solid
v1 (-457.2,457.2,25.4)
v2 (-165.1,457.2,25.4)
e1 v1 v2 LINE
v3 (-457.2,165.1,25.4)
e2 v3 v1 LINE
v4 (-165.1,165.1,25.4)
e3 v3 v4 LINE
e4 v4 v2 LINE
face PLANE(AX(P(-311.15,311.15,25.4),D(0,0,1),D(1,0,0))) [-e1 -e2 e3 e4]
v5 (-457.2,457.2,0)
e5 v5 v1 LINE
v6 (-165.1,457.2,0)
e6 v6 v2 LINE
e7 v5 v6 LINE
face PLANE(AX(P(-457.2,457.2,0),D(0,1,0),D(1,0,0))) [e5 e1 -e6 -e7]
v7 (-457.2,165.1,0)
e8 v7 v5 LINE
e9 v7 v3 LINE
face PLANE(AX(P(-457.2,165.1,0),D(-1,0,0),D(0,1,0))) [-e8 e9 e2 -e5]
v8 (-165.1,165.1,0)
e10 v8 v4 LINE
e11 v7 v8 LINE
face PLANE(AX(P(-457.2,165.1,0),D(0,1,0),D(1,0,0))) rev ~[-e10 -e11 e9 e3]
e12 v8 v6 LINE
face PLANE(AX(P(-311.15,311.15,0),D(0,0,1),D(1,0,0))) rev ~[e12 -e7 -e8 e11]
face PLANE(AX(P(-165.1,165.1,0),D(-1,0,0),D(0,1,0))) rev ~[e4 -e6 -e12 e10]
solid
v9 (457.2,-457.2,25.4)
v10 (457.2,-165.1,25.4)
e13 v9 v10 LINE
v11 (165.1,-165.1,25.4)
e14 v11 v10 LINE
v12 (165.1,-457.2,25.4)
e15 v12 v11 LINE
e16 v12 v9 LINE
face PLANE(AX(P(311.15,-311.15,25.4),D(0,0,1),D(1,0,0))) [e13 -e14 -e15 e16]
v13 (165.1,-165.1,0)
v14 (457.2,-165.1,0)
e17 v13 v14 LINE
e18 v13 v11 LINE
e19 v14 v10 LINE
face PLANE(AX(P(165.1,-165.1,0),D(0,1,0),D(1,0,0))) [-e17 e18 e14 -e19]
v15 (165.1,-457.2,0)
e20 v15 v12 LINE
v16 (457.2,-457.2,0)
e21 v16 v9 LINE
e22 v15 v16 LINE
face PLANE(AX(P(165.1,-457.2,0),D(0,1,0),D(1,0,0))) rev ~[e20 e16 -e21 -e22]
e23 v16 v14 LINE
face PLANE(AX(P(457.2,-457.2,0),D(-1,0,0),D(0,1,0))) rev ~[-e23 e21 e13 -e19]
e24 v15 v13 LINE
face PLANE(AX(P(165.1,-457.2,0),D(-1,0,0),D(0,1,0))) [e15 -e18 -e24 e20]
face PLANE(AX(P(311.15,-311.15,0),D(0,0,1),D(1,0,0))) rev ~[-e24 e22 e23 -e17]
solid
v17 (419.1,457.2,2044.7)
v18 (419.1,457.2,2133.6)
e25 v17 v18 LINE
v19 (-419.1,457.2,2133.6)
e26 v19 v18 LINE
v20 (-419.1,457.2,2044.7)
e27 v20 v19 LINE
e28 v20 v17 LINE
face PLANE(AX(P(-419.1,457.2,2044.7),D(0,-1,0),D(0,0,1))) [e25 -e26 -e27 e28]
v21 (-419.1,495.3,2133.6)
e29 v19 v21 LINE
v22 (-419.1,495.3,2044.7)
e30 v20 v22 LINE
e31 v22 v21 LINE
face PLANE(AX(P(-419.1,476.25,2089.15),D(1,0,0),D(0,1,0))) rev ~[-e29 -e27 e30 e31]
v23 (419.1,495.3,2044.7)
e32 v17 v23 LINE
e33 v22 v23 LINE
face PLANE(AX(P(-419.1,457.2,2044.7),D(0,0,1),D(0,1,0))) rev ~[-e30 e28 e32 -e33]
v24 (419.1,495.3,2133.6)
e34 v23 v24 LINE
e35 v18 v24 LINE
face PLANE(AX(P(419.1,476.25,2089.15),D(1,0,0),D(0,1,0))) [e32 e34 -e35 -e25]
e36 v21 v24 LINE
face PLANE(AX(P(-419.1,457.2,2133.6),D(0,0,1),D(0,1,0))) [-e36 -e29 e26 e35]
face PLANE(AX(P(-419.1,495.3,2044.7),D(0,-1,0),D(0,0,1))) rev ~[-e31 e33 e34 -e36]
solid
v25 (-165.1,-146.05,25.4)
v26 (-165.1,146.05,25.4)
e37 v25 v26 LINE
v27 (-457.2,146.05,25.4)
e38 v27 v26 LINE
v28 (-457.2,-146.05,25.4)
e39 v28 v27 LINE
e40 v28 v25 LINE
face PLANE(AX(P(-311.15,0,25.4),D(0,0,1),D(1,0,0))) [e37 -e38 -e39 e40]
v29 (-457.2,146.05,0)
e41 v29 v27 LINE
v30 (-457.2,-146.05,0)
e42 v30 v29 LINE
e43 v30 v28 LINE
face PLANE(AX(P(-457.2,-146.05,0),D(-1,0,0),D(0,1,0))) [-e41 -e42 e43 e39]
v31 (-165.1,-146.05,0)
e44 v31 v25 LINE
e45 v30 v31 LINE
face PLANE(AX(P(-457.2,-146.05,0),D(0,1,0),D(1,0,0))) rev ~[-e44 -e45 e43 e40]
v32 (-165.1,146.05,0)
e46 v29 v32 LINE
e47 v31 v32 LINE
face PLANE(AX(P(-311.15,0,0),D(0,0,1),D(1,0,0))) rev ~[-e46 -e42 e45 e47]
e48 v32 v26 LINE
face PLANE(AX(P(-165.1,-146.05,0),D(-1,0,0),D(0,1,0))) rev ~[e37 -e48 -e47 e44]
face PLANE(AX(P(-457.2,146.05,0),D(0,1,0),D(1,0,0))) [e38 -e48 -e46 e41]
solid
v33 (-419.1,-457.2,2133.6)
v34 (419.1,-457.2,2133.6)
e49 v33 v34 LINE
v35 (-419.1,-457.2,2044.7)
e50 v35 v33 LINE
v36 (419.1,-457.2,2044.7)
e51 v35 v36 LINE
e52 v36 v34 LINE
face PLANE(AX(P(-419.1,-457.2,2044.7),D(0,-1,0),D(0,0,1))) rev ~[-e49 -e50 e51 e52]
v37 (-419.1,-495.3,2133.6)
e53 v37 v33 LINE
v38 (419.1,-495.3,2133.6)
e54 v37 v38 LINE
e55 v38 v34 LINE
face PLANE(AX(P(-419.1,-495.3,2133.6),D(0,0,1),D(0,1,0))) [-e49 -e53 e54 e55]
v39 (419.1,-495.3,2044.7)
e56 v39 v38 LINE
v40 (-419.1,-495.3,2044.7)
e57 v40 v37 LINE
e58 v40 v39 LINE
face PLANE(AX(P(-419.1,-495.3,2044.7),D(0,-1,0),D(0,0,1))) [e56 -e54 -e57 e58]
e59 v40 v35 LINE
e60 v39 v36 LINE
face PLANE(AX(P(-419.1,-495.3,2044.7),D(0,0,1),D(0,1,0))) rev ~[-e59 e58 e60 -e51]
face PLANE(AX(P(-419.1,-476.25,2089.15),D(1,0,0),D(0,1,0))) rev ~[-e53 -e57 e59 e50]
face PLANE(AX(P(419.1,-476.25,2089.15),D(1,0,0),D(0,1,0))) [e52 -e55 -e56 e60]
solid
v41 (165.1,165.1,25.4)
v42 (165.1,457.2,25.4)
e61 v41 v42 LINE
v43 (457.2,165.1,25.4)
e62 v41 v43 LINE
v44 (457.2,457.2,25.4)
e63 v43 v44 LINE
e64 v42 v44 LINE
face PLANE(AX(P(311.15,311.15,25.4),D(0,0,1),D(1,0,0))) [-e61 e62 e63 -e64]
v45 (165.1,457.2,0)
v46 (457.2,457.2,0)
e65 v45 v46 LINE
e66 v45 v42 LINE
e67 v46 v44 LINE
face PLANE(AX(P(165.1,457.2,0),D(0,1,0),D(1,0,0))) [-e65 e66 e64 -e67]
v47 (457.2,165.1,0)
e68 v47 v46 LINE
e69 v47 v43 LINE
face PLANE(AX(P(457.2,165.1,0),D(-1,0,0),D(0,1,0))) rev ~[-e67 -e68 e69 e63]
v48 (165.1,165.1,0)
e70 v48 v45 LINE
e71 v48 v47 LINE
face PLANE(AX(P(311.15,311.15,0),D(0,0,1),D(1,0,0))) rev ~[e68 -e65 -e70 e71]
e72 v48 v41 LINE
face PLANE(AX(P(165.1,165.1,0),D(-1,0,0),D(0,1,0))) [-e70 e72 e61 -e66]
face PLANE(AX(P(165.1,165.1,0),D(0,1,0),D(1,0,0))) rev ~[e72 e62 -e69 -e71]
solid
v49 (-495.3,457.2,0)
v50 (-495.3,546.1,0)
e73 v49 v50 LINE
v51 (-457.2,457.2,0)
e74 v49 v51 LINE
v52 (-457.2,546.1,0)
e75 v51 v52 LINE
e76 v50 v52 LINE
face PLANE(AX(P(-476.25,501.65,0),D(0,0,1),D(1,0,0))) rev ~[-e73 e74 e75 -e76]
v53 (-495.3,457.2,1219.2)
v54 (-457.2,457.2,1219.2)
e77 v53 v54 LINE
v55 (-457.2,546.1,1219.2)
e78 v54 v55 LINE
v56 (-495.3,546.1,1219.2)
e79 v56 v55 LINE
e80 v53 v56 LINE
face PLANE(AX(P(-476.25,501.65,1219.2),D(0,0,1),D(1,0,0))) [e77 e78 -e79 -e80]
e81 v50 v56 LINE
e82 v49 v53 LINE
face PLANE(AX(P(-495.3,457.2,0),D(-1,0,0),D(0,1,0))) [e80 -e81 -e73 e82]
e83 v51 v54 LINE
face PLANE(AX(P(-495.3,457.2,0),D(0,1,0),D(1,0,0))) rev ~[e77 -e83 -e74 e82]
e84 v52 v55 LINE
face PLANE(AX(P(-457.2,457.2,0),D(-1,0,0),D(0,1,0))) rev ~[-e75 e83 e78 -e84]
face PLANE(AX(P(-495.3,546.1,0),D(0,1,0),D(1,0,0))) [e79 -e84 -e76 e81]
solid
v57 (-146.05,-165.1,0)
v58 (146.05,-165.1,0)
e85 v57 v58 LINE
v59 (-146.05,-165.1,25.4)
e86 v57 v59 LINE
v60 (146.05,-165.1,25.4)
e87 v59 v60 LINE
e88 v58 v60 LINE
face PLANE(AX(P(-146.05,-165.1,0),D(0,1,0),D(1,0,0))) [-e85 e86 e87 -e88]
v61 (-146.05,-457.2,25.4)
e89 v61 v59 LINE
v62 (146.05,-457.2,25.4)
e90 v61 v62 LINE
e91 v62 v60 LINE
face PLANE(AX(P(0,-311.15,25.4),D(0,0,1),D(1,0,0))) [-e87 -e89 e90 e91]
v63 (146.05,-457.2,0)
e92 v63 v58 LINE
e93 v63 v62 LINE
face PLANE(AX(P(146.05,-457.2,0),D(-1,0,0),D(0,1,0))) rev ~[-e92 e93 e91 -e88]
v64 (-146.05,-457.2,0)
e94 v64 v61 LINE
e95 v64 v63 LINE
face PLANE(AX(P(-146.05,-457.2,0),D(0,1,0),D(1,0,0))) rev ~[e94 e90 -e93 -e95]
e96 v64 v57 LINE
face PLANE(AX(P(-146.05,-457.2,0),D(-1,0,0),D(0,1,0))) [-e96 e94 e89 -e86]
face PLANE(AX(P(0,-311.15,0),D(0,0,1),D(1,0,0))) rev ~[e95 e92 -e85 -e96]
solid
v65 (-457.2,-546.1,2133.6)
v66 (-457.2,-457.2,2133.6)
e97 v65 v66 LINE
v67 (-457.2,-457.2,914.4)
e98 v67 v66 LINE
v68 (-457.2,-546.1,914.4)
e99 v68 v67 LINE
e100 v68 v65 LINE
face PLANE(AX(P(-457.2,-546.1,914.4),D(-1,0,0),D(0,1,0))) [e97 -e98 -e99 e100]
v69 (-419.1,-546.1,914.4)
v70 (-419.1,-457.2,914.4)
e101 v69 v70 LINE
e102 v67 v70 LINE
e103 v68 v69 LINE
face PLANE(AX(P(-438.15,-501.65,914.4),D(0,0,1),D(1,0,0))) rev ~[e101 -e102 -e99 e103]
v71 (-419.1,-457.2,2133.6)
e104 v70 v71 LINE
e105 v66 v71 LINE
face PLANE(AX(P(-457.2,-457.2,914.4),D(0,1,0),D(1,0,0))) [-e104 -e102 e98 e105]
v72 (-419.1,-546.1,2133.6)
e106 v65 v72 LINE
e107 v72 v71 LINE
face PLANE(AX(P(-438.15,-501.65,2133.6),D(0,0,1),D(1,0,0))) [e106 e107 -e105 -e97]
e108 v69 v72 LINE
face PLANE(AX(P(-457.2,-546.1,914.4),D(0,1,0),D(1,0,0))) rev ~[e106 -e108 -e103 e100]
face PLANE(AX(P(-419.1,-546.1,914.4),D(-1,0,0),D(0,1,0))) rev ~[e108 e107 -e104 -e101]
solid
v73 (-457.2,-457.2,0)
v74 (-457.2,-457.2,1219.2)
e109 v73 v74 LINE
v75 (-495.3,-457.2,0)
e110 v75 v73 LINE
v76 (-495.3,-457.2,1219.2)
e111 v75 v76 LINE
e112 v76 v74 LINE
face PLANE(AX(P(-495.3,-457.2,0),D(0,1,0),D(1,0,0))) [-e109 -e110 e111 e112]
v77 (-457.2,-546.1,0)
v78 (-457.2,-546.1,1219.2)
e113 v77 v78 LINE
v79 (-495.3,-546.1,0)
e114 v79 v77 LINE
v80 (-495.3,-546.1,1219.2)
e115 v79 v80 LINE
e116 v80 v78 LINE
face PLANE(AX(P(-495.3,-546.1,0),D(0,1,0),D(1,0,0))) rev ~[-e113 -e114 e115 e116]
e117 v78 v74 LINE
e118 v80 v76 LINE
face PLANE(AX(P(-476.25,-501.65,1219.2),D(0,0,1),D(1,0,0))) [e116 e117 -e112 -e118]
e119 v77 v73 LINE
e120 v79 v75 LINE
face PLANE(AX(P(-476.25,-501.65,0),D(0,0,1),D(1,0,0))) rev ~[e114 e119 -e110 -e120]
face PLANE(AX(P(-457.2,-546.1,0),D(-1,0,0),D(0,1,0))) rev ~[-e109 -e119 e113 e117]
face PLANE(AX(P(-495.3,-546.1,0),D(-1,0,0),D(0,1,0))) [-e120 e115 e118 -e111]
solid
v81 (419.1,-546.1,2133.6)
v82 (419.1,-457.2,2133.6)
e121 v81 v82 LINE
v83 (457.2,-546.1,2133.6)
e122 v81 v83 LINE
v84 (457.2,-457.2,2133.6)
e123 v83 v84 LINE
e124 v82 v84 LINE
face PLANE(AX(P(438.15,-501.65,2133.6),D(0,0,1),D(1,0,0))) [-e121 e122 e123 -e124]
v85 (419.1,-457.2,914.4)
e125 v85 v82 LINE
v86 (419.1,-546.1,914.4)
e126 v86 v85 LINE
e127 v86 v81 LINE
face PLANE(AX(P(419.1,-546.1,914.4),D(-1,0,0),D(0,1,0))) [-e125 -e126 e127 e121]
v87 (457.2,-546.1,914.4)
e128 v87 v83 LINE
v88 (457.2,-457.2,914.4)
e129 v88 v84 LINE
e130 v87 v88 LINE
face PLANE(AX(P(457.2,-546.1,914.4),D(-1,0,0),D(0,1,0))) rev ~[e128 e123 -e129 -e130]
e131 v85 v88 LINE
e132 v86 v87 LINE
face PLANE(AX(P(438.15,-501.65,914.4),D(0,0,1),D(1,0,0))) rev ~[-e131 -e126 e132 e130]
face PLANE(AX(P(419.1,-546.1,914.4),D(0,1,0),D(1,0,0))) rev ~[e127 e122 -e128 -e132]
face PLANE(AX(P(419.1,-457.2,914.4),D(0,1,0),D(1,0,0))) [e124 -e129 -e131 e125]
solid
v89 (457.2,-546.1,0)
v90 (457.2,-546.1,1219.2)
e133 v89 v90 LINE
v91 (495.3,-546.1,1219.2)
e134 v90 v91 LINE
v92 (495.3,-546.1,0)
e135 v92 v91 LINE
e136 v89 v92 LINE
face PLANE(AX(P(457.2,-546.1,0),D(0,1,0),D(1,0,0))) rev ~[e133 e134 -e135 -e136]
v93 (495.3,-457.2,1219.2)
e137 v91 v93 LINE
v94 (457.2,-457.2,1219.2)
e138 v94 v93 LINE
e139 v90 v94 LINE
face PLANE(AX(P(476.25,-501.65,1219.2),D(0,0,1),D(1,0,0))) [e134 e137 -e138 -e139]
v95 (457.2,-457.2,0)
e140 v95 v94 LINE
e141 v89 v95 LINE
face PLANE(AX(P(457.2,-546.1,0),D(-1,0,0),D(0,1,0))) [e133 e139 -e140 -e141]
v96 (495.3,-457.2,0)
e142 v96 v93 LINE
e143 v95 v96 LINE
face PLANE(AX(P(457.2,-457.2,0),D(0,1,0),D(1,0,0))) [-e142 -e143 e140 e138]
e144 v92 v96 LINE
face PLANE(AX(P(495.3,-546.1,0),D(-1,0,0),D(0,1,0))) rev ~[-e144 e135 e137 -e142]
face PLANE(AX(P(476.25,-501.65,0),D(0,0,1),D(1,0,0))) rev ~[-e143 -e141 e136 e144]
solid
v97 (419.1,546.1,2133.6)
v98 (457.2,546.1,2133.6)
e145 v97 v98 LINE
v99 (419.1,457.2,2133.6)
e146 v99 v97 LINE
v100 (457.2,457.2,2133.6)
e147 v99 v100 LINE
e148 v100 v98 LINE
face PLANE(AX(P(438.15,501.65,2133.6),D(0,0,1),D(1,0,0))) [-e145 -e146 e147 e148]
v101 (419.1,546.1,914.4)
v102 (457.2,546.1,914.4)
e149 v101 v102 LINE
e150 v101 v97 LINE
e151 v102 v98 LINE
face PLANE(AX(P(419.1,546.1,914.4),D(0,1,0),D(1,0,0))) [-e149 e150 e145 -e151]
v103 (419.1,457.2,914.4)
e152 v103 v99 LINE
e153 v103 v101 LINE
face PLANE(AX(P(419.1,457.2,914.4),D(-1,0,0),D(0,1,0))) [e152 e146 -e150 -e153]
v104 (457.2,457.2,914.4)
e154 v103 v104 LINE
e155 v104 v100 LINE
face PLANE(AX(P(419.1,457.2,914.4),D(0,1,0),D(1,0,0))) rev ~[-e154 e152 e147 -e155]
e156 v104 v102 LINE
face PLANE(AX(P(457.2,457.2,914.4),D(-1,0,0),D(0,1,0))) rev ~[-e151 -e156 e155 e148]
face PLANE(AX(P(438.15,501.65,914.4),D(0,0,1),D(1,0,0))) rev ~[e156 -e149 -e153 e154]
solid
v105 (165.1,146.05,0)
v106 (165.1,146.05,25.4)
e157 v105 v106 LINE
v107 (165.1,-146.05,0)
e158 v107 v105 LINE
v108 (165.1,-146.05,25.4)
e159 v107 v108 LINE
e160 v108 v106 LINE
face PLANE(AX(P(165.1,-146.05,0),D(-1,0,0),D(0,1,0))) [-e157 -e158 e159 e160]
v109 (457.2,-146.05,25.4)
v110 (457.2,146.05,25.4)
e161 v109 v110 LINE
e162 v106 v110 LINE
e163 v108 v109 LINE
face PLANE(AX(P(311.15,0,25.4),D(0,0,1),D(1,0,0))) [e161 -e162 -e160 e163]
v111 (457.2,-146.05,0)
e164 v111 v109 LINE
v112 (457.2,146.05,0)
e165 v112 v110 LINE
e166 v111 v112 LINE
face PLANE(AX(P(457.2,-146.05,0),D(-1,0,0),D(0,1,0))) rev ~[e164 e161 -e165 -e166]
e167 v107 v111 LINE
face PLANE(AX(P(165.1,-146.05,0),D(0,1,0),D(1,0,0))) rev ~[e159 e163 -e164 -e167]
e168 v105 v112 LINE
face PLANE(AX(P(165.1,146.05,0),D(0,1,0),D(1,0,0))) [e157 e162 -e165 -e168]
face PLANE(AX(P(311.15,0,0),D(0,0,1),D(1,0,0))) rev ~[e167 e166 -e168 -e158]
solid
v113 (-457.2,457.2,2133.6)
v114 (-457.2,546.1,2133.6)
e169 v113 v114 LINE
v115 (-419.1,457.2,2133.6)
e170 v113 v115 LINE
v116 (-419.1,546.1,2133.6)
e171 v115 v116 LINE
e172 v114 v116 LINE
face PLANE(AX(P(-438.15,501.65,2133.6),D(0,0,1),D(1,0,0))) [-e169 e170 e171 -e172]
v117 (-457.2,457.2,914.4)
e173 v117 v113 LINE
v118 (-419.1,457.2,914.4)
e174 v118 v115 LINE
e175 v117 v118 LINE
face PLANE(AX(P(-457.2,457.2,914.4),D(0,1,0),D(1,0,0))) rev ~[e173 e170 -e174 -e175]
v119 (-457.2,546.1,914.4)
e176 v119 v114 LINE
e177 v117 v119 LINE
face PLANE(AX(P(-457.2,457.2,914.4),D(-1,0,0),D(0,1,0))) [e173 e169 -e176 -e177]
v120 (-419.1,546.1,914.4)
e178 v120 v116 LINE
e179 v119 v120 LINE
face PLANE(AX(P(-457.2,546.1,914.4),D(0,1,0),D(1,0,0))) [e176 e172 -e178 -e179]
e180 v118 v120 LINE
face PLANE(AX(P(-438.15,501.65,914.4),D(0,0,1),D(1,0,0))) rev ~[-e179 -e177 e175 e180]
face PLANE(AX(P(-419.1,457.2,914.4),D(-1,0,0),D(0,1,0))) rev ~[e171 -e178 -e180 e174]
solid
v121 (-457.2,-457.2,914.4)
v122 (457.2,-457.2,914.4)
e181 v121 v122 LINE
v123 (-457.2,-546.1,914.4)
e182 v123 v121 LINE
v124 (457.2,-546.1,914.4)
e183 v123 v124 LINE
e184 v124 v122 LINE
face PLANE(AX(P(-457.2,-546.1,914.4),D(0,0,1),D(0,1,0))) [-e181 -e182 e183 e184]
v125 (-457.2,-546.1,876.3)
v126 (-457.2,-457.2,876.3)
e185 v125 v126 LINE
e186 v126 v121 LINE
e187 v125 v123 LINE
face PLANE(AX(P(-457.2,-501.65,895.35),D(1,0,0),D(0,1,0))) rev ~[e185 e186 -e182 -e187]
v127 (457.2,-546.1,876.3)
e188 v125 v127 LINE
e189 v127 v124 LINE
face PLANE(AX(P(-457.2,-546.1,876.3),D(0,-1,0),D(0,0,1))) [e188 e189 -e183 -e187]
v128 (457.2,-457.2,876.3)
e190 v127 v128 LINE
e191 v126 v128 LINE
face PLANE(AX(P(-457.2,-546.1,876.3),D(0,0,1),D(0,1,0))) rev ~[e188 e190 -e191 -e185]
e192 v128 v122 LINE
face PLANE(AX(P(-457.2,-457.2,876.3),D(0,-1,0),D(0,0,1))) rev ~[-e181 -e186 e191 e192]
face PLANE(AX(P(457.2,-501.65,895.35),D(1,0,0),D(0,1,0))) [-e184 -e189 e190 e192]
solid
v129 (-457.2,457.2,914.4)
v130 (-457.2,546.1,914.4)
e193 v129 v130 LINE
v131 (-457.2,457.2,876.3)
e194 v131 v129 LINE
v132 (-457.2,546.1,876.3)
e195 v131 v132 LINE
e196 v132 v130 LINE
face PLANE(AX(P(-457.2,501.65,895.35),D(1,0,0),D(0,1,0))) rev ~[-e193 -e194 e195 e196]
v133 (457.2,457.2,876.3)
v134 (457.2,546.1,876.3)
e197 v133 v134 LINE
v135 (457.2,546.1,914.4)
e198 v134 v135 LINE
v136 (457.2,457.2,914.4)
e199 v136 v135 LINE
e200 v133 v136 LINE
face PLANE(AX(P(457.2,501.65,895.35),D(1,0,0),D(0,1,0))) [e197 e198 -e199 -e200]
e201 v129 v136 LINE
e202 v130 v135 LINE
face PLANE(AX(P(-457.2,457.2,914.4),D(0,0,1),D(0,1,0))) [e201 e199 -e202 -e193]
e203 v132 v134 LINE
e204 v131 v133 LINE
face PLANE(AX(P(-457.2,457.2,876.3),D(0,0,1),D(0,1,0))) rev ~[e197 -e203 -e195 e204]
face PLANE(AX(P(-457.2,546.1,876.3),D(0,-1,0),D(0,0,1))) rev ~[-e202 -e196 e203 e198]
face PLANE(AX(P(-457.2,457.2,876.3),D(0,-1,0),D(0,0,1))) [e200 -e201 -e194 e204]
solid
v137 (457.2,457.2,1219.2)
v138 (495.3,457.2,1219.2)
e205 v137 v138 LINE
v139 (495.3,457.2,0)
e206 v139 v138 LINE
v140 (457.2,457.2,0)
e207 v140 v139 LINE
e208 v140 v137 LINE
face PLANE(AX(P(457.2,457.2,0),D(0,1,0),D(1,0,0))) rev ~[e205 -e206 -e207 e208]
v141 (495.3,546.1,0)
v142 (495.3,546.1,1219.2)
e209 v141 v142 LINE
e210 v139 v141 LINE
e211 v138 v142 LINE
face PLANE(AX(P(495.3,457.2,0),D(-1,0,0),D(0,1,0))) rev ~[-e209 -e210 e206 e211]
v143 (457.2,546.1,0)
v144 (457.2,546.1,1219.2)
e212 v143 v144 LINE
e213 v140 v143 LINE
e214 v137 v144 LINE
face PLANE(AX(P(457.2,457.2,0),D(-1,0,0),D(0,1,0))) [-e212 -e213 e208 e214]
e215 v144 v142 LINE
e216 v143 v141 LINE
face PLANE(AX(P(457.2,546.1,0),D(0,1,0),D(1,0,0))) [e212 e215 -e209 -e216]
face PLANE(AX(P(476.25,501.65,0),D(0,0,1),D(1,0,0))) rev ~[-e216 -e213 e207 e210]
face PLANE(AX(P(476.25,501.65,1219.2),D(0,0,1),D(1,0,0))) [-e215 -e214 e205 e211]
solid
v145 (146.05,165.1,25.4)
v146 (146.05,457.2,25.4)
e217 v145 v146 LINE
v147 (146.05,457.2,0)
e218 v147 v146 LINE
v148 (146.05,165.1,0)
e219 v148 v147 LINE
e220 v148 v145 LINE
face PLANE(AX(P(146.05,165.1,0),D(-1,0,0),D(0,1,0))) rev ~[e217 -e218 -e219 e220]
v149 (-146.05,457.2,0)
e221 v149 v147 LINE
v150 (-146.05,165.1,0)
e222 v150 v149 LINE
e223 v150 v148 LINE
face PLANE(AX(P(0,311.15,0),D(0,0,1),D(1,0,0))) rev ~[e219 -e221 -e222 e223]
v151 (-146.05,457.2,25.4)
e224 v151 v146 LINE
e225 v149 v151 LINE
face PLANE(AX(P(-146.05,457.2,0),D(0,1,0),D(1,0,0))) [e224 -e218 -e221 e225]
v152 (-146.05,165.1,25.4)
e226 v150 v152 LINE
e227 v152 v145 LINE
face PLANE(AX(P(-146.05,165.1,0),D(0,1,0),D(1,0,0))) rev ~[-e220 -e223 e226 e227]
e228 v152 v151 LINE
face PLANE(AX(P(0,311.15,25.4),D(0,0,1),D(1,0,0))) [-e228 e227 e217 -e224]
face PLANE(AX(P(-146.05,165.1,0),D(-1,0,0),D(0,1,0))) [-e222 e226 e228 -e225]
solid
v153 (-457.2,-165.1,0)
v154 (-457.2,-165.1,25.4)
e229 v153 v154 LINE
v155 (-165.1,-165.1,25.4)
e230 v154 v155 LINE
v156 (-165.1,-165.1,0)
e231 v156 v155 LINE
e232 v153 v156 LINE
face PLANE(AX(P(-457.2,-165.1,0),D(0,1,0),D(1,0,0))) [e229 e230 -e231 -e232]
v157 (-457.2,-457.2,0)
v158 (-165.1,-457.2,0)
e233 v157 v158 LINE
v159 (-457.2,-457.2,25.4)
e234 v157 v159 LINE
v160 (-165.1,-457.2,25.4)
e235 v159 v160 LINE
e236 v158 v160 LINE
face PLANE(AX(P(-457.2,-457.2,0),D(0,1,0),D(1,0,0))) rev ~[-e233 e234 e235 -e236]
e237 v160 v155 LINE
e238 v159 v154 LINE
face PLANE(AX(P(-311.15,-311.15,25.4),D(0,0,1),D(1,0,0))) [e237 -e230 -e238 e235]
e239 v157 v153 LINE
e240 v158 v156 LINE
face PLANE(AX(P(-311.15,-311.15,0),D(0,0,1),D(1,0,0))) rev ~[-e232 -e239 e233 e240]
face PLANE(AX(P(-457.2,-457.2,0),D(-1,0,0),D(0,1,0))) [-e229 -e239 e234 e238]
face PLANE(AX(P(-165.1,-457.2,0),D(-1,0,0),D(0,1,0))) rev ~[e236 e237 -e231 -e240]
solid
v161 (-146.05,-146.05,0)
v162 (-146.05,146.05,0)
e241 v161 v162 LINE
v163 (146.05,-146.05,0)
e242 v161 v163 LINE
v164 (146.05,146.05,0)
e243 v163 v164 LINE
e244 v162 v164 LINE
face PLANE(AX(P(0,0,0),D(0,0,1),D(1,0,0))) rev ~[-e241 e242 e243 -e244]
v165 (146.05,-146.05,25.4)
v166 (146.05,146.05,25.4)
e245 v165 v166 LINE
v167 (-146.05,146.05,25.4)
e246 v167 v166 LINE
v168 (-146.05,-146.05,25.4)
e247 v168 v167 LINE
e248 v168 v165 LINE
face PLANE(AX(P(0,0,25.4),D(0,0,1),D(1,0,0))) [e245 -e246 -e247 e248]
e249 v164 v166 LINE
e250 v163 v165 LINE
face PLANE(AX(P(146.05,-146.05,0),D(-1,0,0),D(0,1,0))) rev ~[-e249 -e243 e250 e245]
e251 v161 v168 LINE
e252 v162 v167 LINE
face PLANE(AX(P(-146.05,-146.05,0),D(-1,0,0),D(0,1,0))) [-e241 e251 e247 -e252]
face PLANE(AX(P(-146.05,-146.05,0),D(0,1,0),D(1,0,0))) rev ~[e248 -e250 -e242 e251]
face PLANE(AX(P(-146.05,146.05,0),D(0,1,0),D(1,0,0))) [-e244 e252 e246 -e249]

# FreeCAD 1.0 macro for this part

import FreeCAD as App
import Part
import Sketcher

V = App.Vector
Q = App.Units.Quantity

doc = App.newDocument("Part")
body = doc.addObject("PartDesign::Body", "Body")

# Sketch on XY plane
sketch1 = body.newObject("Sketcher::SketchObject", "Sketch")
sketch1.AttachmentSupport = (doc.getObject("XY_Plane"), [""])
sketch1.MapMode = "FlatFace"
sketch1.addGeometry([
    Part.LineSegment(V(-457, 457, 0), V(-457, 165, 0)),
    Part.LineSegment(V(-457, 165, 0), V(-165, 165, 0)),
    Part.LineSegment(V(-165, 165, 0), V(-165, 457, 0)),
    Part.LineSegment(V(-165, 457, 0), V(-457, 457, 0)),
], False)
sketch1.addConstraint([
    Sketcher.Constraint("Coincident", 0, 2, 1, 1),
    Sketcher.Constraint("Coincident", 1, 2, 2, 1),
    Sketcher.Constraint("Coincident", 2, 2, 3, 1),
    Sketcher.Constraint("Coincident", 3, 2, 0, 1),
    Sketcher.Constraint("Vertical", 0),
    Sketcher.Constraint("Horizontal", 1),
    Sketcher.Constraint("Vertical", 2),
    Sketcher.Constraint("Horizontal", 3),
    Sketcher.Constraint("Equal", 3, 0),
    Sketcher.Constraint("DistanceX", 1, 1, 1, 2, Q("11.5 in")),
    Sketcher.Constraint("DistanceX", 0, 2, -1, 1, Q("18 in")),
    Sketcher.Constraint("DistanceY", -1, 1, 2, 2, Q("18 in")),
])
pad1 = body.newObject("PartDesign::Pad", "Pad")
pad1.Profile = sketch1
pad1.Length = Q("1 in")
body2 = doc.addObject("PartDesign::Body", "Body001")

# Sketch on XY plane
sketch2 = body2.newObject("Sketcher::SketchObject", "Sketch001")
sketch2.AttachmentSupport = (doc.getObject("XY_Plane001"), [""])
sketch2.MapMode = "FlatFace"
sketch2.addGeometry([
    Part.LineSegment(V(-457, 146, 0), V(-457, -146, 0)),
    Part.LineSegment(V(-457, -146, 0), V(-165, -146, 0)),
    Part.LineSegment(V(-165, -146, 0), V(-165, 146, 0)),
    Part.LineSegment(V(-165, 146, 0), V(-457, 146, 0)),
], False)
sketch2.addConstraint([
    Sketcher.Constraint("Coincident", 0, 2, 1, 1),
    Sketcher.Constraint("Coincident", 1, 2, 2, 1),
    Sketcher.Constraint("Coincident", 2, 2, 3, 1),
    Sketcher.Constraint("Coincident", 3, 2, 0, 1),
    Sketcher.Constraint("Vertical", 0),
    Sketcher.Constraint("Horizontal", 1),
    Sketcher.Constraint("Vertical", 2),
    Sketcher.Constraint("Horizontal", 3),
    Sketcher.Constraint("Equal", 3, 0),
    Sketcher.Constraint("DistanceX", 1, 1, 1, 2, Q("11.5 in")),
    Sketcher.Constraint("DistanceX", 0, 2, -1, 1, Q("18 in")),
    Sketcher.Constraint("DistanceY", 0, 2, -1, 1, Q("5.75 in")),
])
pad2 = body2.newObject("PartDesign::Pad", "Pad001")
pad2.Profile = sketch2
pad2.Length = Q("1 in")
body3 = doc.addObject("PartDesign::Body", "Body002")

# Sketch on XY plane
sketch3 = body3.newObject("Sketcher::SketchObject", "Sketch002")
sketch3.AttachmentSupport = (doc.getObject("XY_Plane002"), [""])
sketch3.MapMode = "FlatFace"
sketch3.addGeometry([
    Part.LineSegment(V(-457, -165, 0), V(-457, -457, 0)),
    Part.LineSegment(V(-457, -457, 0), V(-165, -457, 0)),
    Part.LineSegment(V(-165, -457, 0), V(-165, -165, 0)),
    Part.LineSegment(V(-165, -165, 0), V(-457, -165, 0)),
], False)
sketch3.addConstraint([
    Sketcher.Constraint("Coincident", 0, 2, 1, 1),
    Sketcher.Constraint("Coincident", 1, 2, 2, 1),
    Sketcher.Constraint("Coincident", 2, 2, 3, 1),
    Sketcher.Constraint("Coincident", 3, 2, 0, 1),
    Sketcher.Constraint("Vertical", 0),
    Sketcher.Constraint("Horizontal", 1),
    Sketcher.Constraint("Vertical", 2),
    Sketcher.Constraint("Horizontal", 3),
    Sketcher.Constraint("Equal", 3, 0),
    Sketcher.Constraint("DistanceX", 1, 1, 1, 2, Q("11.5 in")),
    Sketcher.Constraint("DistanceX", 0, 2, -1, 1, Q("18 in")),
    Sketcher.Constraint("DistanceY", 0, 2, -1, 1, Q("18 in")),
])
pad3 = body3.newObject("PartDesign::Pad", "Pad002")
pad3.Profile = sketch3
pad3.Length = Q("1 in")
body4 = doc.addObject("PartDesign::Body", "Body003")

# Sketch on XY plane
sketch4 = body4.newObject("Sketcher::SketchObject", "Sketch003")
sketch4.AttachmentSupport = (doc.getObject("XY_Plane003"), [""])
sketch4.MapMode = "FlatFace"
sketch4.addGeometry([
    Part.LineSegment(V(-146, 457, 0), V(-146, 165, 0)),
    Part.LineSegment(V(-146, 165, 0), V(146, 165, 0)),
    Part.LineSegment(V(146, 165, 0), V(146, 457, 0)),
    Part.LineSegment(V(146, 457, 0), V(-146, 457, 0)),
], False)
sketch4.addConstraint([
    Sketcher.Constraint("Coincident", 0, 2, 1, 1),
    Sketcher.Constraint("Coincident", 1, 2, 2, 1),
    Sketcher.Constraint("Coincident", 2, 2, 3, 1),
    Sketcher.Constraint("Coincident", 3, 2, 0, 1),
    Sketcher.Constraint("Vertical", 0),
    Sketcher.Constraint("Horizontal", 1),
    Sketcher.Constraint("Vertical", 2),
    Sketcher.Constraint("Horizontal", 3),
    Sketcher.Constraint("Equal", 3, 0),
    Sketcher.Constraint("DistanceX", 1, 1, 1, 2, Q("11.5 in")),
    Sketcher.Constraint("DistanceY", -1, 1, 2, 2, Q("18 in")),
    Sketcher.Constraint("DistanceX", 0, 2, -1, 1, Q("5.75 in")),
])
pad4 = body4.newObject("PartDesign::Pad", "Pad003")
pad4.Profile = sketch4
pad4.Length = Q("1 in")
body5 = doc.addObject("PartDesign::Body", "Body004")

# Sketch on XY plane
sketch5 = body5.newObject("Sketcher::SketchObject", "Sketch004")
sketch5.AttachmentSupport = (doc.getObject("XY_Plane004"), [""])
sketch5.MapMode = "FlatFace"
sketch5.addGeometry([
    Part.LineSegment(V(-146, 146, 0), V(-146, -146, 0)),
    Part.LineSegment(V(-146, -146, 0), V(146, -146, 0)),
    Part.LineSegment(V(146, -146, 0), V(146, 146, 0)),
    Part.LineSegment(V(146, 146, 0), V(-146, 146, 0)),
], False)
sketch5.addConstraint([
    Sketcher.Constraint("Coincident", 0, 2, 1, 1),
    Sketcher.Constraint("Coincident", 1, 2, 2, 1),
    Sketcher.Constraint("Coincident", 2, 2, 3, 1),
    Sketcher.Constraint("Coincident", 3, 2, 0, 1),
    Sketcher.Constraint("Vertical", 0),
    Sketcher.Constraint("Horizontal", 1),
    Sketcher.Constraint("Vertical", 2),
    Sketcher.Constraint("Horizontal", 3),
    Sketcher.Constraint("Symmetric", 0, 2, 2, 2, -1, 1),
    Sketcher.Constraint("Equal", 3, 0),
    Sketcher.Constraint("DistanceX", 1, 1, 1, 2, Q("11.5 in")),
])
pad5 = body5.newObject("PartDesign::Pad", "Pad004")
pad5.Profile = sketch5
pad5.Length = Q("1 in")
body6 = doc.addObject("PartDesign::Body", "Body005")

# Sketch on XY plane
sketch6 = body6.newObject("Sketcher::SketchObject", "Sketch005")
sketch6.AttachmentSupport = (doc.getObject("XY_Plane005"), [""])
sketch6.MapMode = "FlatFace"
sketch6.addGeometry([
    Part.LineSegment(V(-146, -165, 0), V(-146, -457, 0)),
    Part.LineSegment(V(-146, -457, 0), V(146, -457, 0)),
    Part.LineSegment(V(146, -457, 0), V(146, -165, 0)),
    Part.LineSegment(V(146, -165, 0), V(-146, -165, 0)),
], False)
sketch6.addConstraint([
    Sketcher.Constraint("Coincident", 0, 2, 1, 1),
    Sketcher.Constraint("Coincident", 1, 2, 2, 1),
    Sketcher.Constraint("Coincident", 2, 2, 3, 1),
    Sketcher.Constraint("Coincident", 3, 2, 0, 1),
    Sketcher.Constraint("Vertical", 0),
    Sketcher.Constraint("Horizontal", 1),
    Sketcher.Constraint("Vertical", 2),
    Sketcher.Constraint("Horizontal", 3),
    Sketcher.Constraint("Equal", 3, 0),
    Sketcher.Constraint("DistanceX", 1, 1, 1, 2, Q("11.5 in")),
    Sketcher.Constraint("DistanceY", 0, 2, -1, 1, Q("18 in")),
    Sketcher.Constraint("DistanceX", 0, 2, -1, 1, Q("5.75 in")),
])
pad6 = body6.newObject("PartDesign::Pad", "Pad005")
pad6.Profile = sketch6
pad6.Length = Q("1 in")
body7 = doc.addObject("PartDesign::Body", "Body006")

# Sketch on XY plane
sketch7 = body7.newObject("Sketcher::SketchObject", "Sketch006")
sketch7.AttachmentSupport = (doc.getObject("XY_Plane006"), [""])
sketch7.MapMode = "FlatFace"
sketch7.addGeometry([
    Part.LineSegment(V(165, 457, 0), V(165, 165, 0)),
    Part.LineSegment(V(165, 165, 0), V(457, 165, 0)),
    Part.LineSegment(V(457, 165, 0), V(457, 457, 0)),
    Part.LineSegment(V(457, 457, 0), V(165, 457, 0)),
], False)
sketch7.addConstraint([
    Sketcher.Constraint("Coincident", 0, 2, 1, 1),
    Sketcher.Constraint("Coincident", 1, 2, 2, 1),
    Sketcher.Constraint("Coincident", 2, 2, 3, 1),
    Sketcher.Constraint("Coincident", 3, 2, 0, 1),
    Sketcher.Constraint("Vertical", 0),
    Sketcher.Constraint("Horizontal", 1),
    Sketcher.Constraint("Vertical", 2),
    Sketcher.Constraint("Horizontal", 3),
    Sketcher.Constraint("Equal", 3, 0),
    Sketcher.Constraint("DistanceX", 1, 1, 1, 2, Q("11.5 in")),
    Sketcher.Constraint("DistanceX", -1, 1, 1, 2, Q("18 in")),
    Sketcher.Constraint("DistanceY", -1, 1, 2, 2, Q("18 in")),
])
pad7 = body7.newObject("PartDesign::Pad", "Pad006")
pad7.Profile = sketch7
pad7.Length = Q("1 in")
body8 = doc.addObject("PartDesign::Body", "Body007")

# Sketch on XY plane
sketch8 = body8.newObject("Sketcher::SketchObject", "Sketch007")
sketch8.AttachmentSupport = (doc.getObject("XY_Plane007"), [""])
sketch8.MapMode = "FlatFace"
sketch8.addGeometry([
    Part.LineSegment(V(165, 146, 0), V(165, -146, 0)),
    Part.LineSegment(V(165, -146, 0), V(457, -146, 0)),
    Part.LineSegment(V(457, -146, 0), V(457, 146, 0)),
    Part.LineSegment(V(457, 146, 0), V(165, 146, 0)),
], False)
sketch8.addConstraint([
    Sketcher.Constraint("Coincident", 0, 2, 1, 1),
    Sketcher.Constraint("Coincident", 1, 2, 2, 1),
    Sketcher.Constraint("Coincident", 2, 2, 3, 1),
    Sketcher.Constraint("Coincident", 3, 2, 0, 1),
    Sketcher.Constraint("Vertical", 0),
    Sketcher.Constraint("Horizontal", 1),
    Sketcher.Constraint("Vertical", 2),
    Sketcher.Constraint("Horizontal", 3),
    Sketcher.Constraint("Equal", 3, 0),
    Sketcher.Constraint("DistanceX", 1, 1, 1, 2, Q("11.5 in")),
    Sketcher.Constraint("DistanceX", -1, 1, 1, 2, Q("18 in")),
    Sketcher.Constraint("DistanceY", 0, 2, -1, 1, Q("5.75 in")),
])
pad8 = body8.newObject("PartDesign::Pad", "Pad007")
pad8.Profile = sketch8
pad8.Length = Q("1 in")
body9 = doc.addObject("PartDesign::Body", "Body008")

# Sketch on XY plane
sketch9 = body9.newObject("Sketcher::SketchObject", "Sketch008")
sketch9.AttachmentSupport = (doc.getObject("XY_Plane008"), [""])
sketch9.MapMode = "FlatFace"
sketch9.addGeometry([
    Part.LineSegment(V(165, -165, 0), V(165, -457, 0)),
    Part.LineSegment(V(165, -457, 0), V(457, -457, 0)),
    Part.LineSegment(V(457, -457, 0), V(457, -165, 0)),
    Part.LineSegment(V(457, -165, 0), V(165, -165, 0)),
], False)
sketch9.addConstraint([
    Sketcher.Constraint("Coincident", 0, 2, 1, 1),
    Sketcher.Constraint("Coincident", 1, 2, 2, 1),
    Sketcher.Constraint("Coincident", 2, 2, 3, 1),
    Sketcher.Constraint("Coincident", 3, 2, 0, 1),
    Sketcher.Constraint("Vertical", 0),
    Sketcher.Constraint("Horizontal", 1),
    Sketcher.Constraint("Vertical", 2),
    Sketcher.Constraint("Horizontal", 3),
    Sketcher.Constraint("Equal", 3, 0),
    Sketcher.Constraint("DistanceX", 1, 1, 1, 2, Q("11.5 in")),
    Sketcher.Constraint("DistanceY", 0, 2, -1, 1, Q("18 in")),
    Sketcher.Constraint("DistanceX", -1, 1, 1, 2, Q("18 in")),
])
pad9 = body9.newObject("PartDesign::Pad", "Pad008")
pad9.Profile = sketch9
pad9.Length = Q("1 in")
body10 = doc.addObject("PartDesign::Body", "Body009")

# Sketch on XY plane
sketch10 = body10.newObject("Sketcher::SketchObject", "Sketch009")
sketch10.AttachmentSupport = (doc.getObject("XY_Plane009"), [""])
sketch10.MapMode = "FlatFace"
sketch10.addGeometry([
    Part.LineSegment(V(-495, 546, 0), V(-495, 457, 0)),
    Part.LineSegment(V(-495, 457, 0), V(-457, 457, 0)),
    Part.LineSegment(V(-457, 457, 0), V(-457, 546, 0)),
    Part.LineSegment(V(-457, 546, 0), V(-495, 546, 0)),
], False)
sketch10.addConstraint([
    Sketcher.Constraint("Coincident", 0, 2, 1, 1),
    Sketcher.Constraint("Coincident", 1, 2, 2, 1),
    Sketcher.Constraint("Coincident", 2, 2, 3, 1),
    Sketcher.Constraint("Coincident", 3, 2, 0, 1),
    Sketcher.Constraint("Vertical", 0),
    Sketcher.Constraint("Horizontal", 1),
    Sketcher.Constraint("Vertical", 2),
    Sketcher.Constraint("Horizontal", 3),
    Sketcher.Constraint("DistanceX", 1, 1, 1, 2, Q("1.5 in")),
    Sketcher.Constraint("DistanceY", 0, 2, 0, 1, Q("3.5 in")),
    Sketcher.Constraint("DistanceY", -1, 1, 0, 2, Q("18 in")),
    Sketcher.Constraint("DistanceX", 1, 2, -1, 1, Q("18 in")),
])
pad10 = body10.newObject("PartDesign::Pad", "Pad009")
pad10.Profile = sketch10
pad10.Length = Q("48 in")
body11 = doc.addObject("PartDesign::Body", "Body010")

# Sketch on XY plane
sketch11 = body11.newObject("Sketcher::SketchObject", "Sketch010")
sketch11.AttachmentSupport = (doc.getObject("XY_Plane010"), [""])
sketch11.MapMode = "FlatFace"
sketch11.addGeometry([
    Part.LineSegment(V(-495, -457, 0), V(-495, -546, 0)),
    Part.LineSegment(V(-495, -546, 0), V(-457, -546, 0)),
    Part.LineSegment(V(-457, -546, 0), V(-457, -457, 0)),
    Part.LineSegment(V(-457, -457, 0), V(-495, -457, 0)),
], False)
sketch11.addConstraint([
    Sketcher.Constraint("Coincident", 0, 2, 1, 1),
    Sketcher.Constraint("Coincident", 1, 2, 2, 1),
    Sketcher.Constraint("Coincident", 2, 2, 3, 1),
    Sketcher.Constraint("Coincident", 3, 2, 0, 1),
    Sketcher.Constraint("Vertical", 0),
    Sketcher.Constraint("Horizontal", 1),
    Sketcher.Constraint("Vertical", 2),
    Sketcher.Constraint("Horizontal", 3),
    Sketcher.Constraint("DistanceX", 1, 1, 1, 2, Q("1.5 in")),
    Sketcher.Constraint("DistanceY", 0, 2, 0, 1, Q("3.5 in")),
    Sketcher.Constraint("DistanceX", 1, 2, -1, 1, Q("18 in")),
    Sketcher.Constraint("DistanceY", 2, 2, -1, 1, Q("18 in")),
])
pad11 = body11.newObject("PartDesign::Pad", "Pad010")
pad11.Profile = sketch11
pad11.Length = Q("48 in")
body12 = doc.addObject("PartDesign::Body", "Body011")

# Sketch on XY plane
sketch12 = body12.newObject("Sketcher::SketchObject", "Sketch011")
sketch12.AttachmentSupport = (doc.getObject("XY_Plane011"), [""])
sketch12.MapMode = "FlatFace"
sketch12.addGeometry([
    Part.LineSegment(V(457, 546, 0), V(457, 457, 0)),
    Part.LineSegment(V(457, 457, 0), V(495, 457, 0)),
    Part.LineSegment(V(495, 457, 0), V(495, 546, 0)),
    Part.LineSegment(V(495, 546, 0), V(457, 546, 0)),
], False)
sketch12.addConstraint([
    Sketcher.Constraint("Coincident", 0, 2, 1, 1),
    Sketcher.Constraint("Coincident", 1, 2, 2, 1),
    Sketcher.Constraint("Coincident", 2, 2, 3, 1),
    Sketcher.Constraint("Coincident", 3, 2, 0, 1),
    Sketcher.Constraint("Vertical", 0),
    Sketcher.Constraint("Horizontal", 1),
    Sketcher.Constraint("Vertical", 2),
    Sketcher.Constraint("Horizontal", 3),
    Sketcher.Constraint("DistanceX", 1, 1, 1, 2, Q("1.5 in")),
    Sketcher.Constraint("DistanceY", 0, 2, 0, 1, Q("3.5 in")),
    Sketcher.Constraint("DistanceX", -1, 1, 0, 2, Q("18 in")),
    Sketcher.Constraint("DistanceY", -1, 1, 0, 2, Q("18 in")),
])
pad12 = body12.newObject("PartDesign::Pad", "Pad011")
pad12.Profile = sketch12
pad12.Length = Q("48 in")
body13 = doc.addObject("PartDesign::Body", "Body012")

# Sketch on XY plane
sketch13 = body13.newObject("Sketcher::SketchObject", "Sketch012")
sketch13.AttachmentSupport = (doc.getObject("XY_Plane012"), [""])
sketch13.MapMode = "FlatFace"
sketch13.addGeometry([
    Part.LineSegment(V(457, -457, 0), V(457, -546, 0)),
    Part.LineSegment(V(457, -546, 0), V(495, -546, 0)),
    Part.LineSegment(V(495, -546, 0), V(495, -457, 0)),
    Part.LineSegment(V(495, -457, 0), V(457, -457, 0)),
], False)
sketch13.addConstraint([
    Sketcher.Constraint("Coincident", 0, 2, 1, 1),
    Sketcher.Constraint("Coincident", 1, 2, 2, 1),
    Sketcher.Constraint("Coincident", 2, 2, 3, 1),
    Sketcher.Constraint("Coincident", 3, 2, 0, 1),
    Sketcher.Constraint("Vertical", 0),
    Sketcher.Constraint("Horizontal", 1),
    Sketcher.Constraint("Vertical", 2),
    Sketcher.Constraint("Horizontal", 3),
    Sketcher.Constraint("DistanceX", 1, 1, 1, 2, Q("1.5 in")),
    Sketcher.Constraint("DistanceY", 0, 2, 0, 1, Q("3.5 in")),
    Sketcher.Constraint("DistanceX", -1, 1, 0, 2, Q("18 in")),
    Sketcher.Constraint("DistanceY", 2, 2, -1, 1, Q("18 in")),
])
pad13 = body13.newObject("PartDesign::Pad", "Pad012")
pad13.Profile = sketch13
pad13.Length = Q("48 in")
body14 = doc.addObject("PartDesign::Body", "Body013")

# Sketch on XY plane
sketch14 = body14.newObject("Sketcher::SketchObject", "Sketch013")
sketch14.AttachmentSupport = (doc.getObject("XY_Plane013"), [""])
sketch14.MapMode = "FlatFace"
sketch14.AttachmentOffset = App.Placement(V(0, 0, 36 * 25.4), App.Rotation())
sketch14.addGeometry([
    Part.LineSegment(V(-457, 546, 0), V(-457, 457, 0)),
    Part.LineSegment(V(-457, 457, 0), V(-419, 457, 0)),
    Part.LineSegment(V(-419, 457, 0), V(-419, 546, 0)),
    Part.LineSegment(V(-419, 546, 0), V(-457, 546, 0)),
], False)
sketch14.addConstraint([
    Sketcher.Constraint("Coincident", 0, 2, 1, 1),
    Sketcher.Constraint("Coincident", 1, 2, 2, 1),
    Sketcher.Constraint("Coincident", 2, 2, 3, 1),
    Sketcher.Constraint("Coincident", 3, 2, 0, 1),
    Sketcher.Constraint("Vertical", 0),
    Sketcher.Constraint("Horizontal", 1),
    Sketcher.Constraint("Vertical", 2),
    Sketcher.Constraint("Horizontal", 3),
    Sketcher.Constraint("DistanceX", 1, 1, 1, 2, Q("1.5 in")),
    Sketcher.Constraint("DistanceY", 0, 2, 0, 1, Q("3.5 in")),
    Sketcher.Constraint("DistanceX", 0, 2, -1, 1, Q("18 in")),
    Sketcher.Constraint("DistanceY", -1, 1, 0, 2, Q("18 in")),
])
pad14 = body14.newObject("PartDesign::Pad", "Pad013")
pad14.Profile = sketch14
pad14.Length = Q("48 in")
body15 = doc.addObject("PartDesign::Body", "Body014")

# Sketch on XY plane
sketch15 = body15.newObject("Sketcher::SketchObject", "Sketch014")
sketch15.AttachmentSupport = (doc.getObject("XY_Plane014"), [""])
sketch15.MapMode = "FlatFace"
sketch15.AttachmentOffset = App.Placement(V(0, 0, 36 * 25.4), App.Rotation())
sketch15.addGeometry([
    Part.LineSegment(V(-457, -457, 0), V(-457, -546, 0)),
    Part.LineSegment(V(-457, -546, 0), V(-419, -546, 0)),
    Part.LineSegment(V(-419, -546, 0), V(-419, -457, 0)),
    Part.LineSegment(V(-419, -457, 0), V(-457, -457, 0)),
], False)
sketch15.addConstraint([
    Sketcher.Constraint("Coincident", 0, 2, 1, 1),
    Sketcher.Constraint("Coincident", 1, 2, 2, 1),
    Sketcher.Constraint("Coincident", 2, 2, 3, 1),
    Sketcher.Constraint("Coincident", 3, 2, 0, 1),
    Sketcher.Constraint("Vertical", 0),
    Sketcher.Constraint("Horizontal", 1),
    Sketcher.Constraint("Vertical", 2),
    Sketcher.Constraint("Horizontal", 3),
    Sketcher.Constraint("DistanceX", 1, 1, 1, 2, Q("1.5 in")),
    Sketcher.Constraint("DistanceY", 0, 2, 0, 1, Q("3.5 in")),
    Sketcher.Constraint("DistanceX", 0, 2, -1, 1, Q("18 in")),
    Sketcher.Constraint("DistanceY", 2, 2, -1, 1, Q("18 in")),
])
pad15 = body15.newObject("PartDesign::Pad", "Pad014")
pad15.Profile = sketch15
pad15.Length = Q("48 in")
body16 = doc.addObject("PartDesign::Body", "Body015")

# Sketch on XY plane
sketch16 = body16.newObject("Sketcher::SketchObject", "Sketch015")
sketch16.AttachmentSupport = (doc.getObject("XY_Plane015"), [""])
sketch16.MapMode = "FlatFace"
sketch16.AttachmentOffset = App.Placement(V(0, 0, 36 * 25.4), App.Rotation())
sketch16.addGeometry([
    Part.LineSegment(V(419, 546, 0), V(419, 457, 0)),
    Part.LineSegment(V(419, 457, 0), V(457, 457, 0)),
    Part.LineSegment(V(457, 457, 0), V(457, 546, 0)),
    Part.LineSegment(V(457, 546, 0), V(419, 546, 0)),
], False)
sketch16.addConstraint([
    Sketcher.Constraint("Coincident", 0, 2, 1, 1),
    Sketcher.Constraint("Coincident", 1, 2, 2, 1),
    Sketcher.Constraint("Coincident", 2, 2, 3, 1),
    Sketcher.Constraint("Coincident", 3, 2, 0, 1),
    Sketcher.Constraint("Vertical", 0),
    Sketcher.Constraint("Horizontal", 1),
    Sketcher.Constraint("Vertical", 2),
    Sketcher.Constraint("Horizontal", 3),
    Sketcher.Constraint("DistanceX", 1, 1, 1, 2, Q("1.5 in")),
    Sketcher.Constraint("DistanceY", 0, 2, 0, 1, Q("3.5 in")),
    Sketcher.Constraint("DistanceY", -1, 1, 0, 2, Q("18 in")),
    Sketcher.Constraint("DistanceX", -1, 1, 1, 2, Q("18 in")),
])
pad16 = body16.newObject("PartDesign::Pad", "Pad015")
pad16.Profile = sketch16
pad16.Length = Q("48 in")
body17 = doc.addObject("PartDesign::Body", "Body016")

# Sketch on XY plane
sketch17 = body17.newObject("Sketcher::SketchObject", "Sketch016")
sketch17.AttachmentSupport = (doc.getObject("XY_Plane016"), [""])
sketch17.MapMode = "FlatFace"
sketch17.AttachmentOffset = App.Placement(V(0, 0, 36 * 25.4), App.Rotation())
sketch17.addGeometry([
    Part.LineSegment(V(419, -457, 0), V(419, -546, 0)),
    Part.LineSegment(V(419, -546, 0), V(457, -546, 0)),
    Part.LineSegment(V(457, -546, 0), V(457, -457, 0)),
    Part.LineSegment(V(457, -457, 0), V(419, -457, 0)),
], False)
sketch17.addConstraint([
    Sketcher.Constraint("Coincident", 0, 2, 1, 1),
    Sketcher.Constraint("Coincident", 1, 2, 2, 1),
    Sketcher.Constraint("Coincident", 2, 2, 3, 1),
    Sketcher.Constraint("Coincident", 3, 2, 0, 1),
    Sketcher.Constraint("Vertical", 0),
    Sketcher.Constraint("Horizontal", 1),
    Sketcher.Constraint("Vertical", 2),
    Sketcher.Constraint("Horizontal", 3),
    Sketcher.Constraint("DistanceX", 1, 1, 1, 2, Q("1.5 in")),
    Sketcher.Constraint("DistanceY", 0, 2, 0, 1, Q("3.5 in")),
    Sketcher.Constraint("DistanceX", -1, 1, 1, 2, Q("18 in")),
    Sketcher.Constraint("DistanceY", 2, 2, -1, 1, Q("18 in")),
])
pad17 = body17.newObject("PartDesign::Pad", "Pad016")
pad17.Profile = sketch17
pad17.Length = Q("48 in")
body18 = doc.addObject("PartDesign::Body", "Body017")

# Sketch on YZ plane
sketch18 = body18.newObject("Sketcher::SketchObject", "Sketch017")
sketch18.AttachmentSupport = (doc.getObject("YZ_Plane017"), [""])
sketch18.MapMode = "FlatFace"
sketch18.AttachmentOffset = App.Placement(V(0, 0, -18 * 25.4), App.Rotation())
sketch18.addGeometry([
    Part.LineSegment(V(-546, 914, 0), V(-546, 876, 0)),
    Part.LineSegment(V(-546, 876, 0), V(-457, 876, 0)),
    Part.LineSegment(V(-457, 876, 0), V(-457, 914, 0)),
    Part.LineSegment(V(-457, 914, 0), V(-546, 914, 0)),
], False)
sketch18.addConstraint([
    Sketcher.Constraint("Coincident", 0, 2, 1, 1),
    Sketcher.Constraint("Coincident", 1, 2, 2, 1),
    Sketcher.Constraint("Coincident", 2, 2, 3, 1),
    Sketcher.Constraint("Coincident", 3, 2, 0, 1),
    Sketcher.Constraint("Vertical", 0),
    Sketcher.Constraint("Horizontal", 1),
    Sketcher.Constraint("Vertical", 2),
    Sketcher.Constraint("Horizontal", 3),
    Sketcher.Constraint("DistanceX", 1, 1, 1, 2, Q("3.5 in")),
    Sketcher.Constraint("DistanceY", 0, 2, 0, 1, Q("1.5 in")),
    Sketcher.Constraint("DistanceX", 1, 2, -1, 1, Q("18 in")),
    Sketcher.Constraint("DistanceY", -1, 1, 2, 2, Q("36 in")),
])
pad18 = body18.newObject("PartDesign::Pad", "Pad017")
pad18.Profile = sketch18
pad18.Length = Q("36 in")
body19 = doc.addObject("PartDesign::Body", "Body018")

# Sketch on YZ plane
sketch19 = body19.newObject("Sketcher::SketchObject", "Sketch018")
sketch19.AttachmentSupport = (doc.getObject("YZ_Plane018"), [""])
sketch19.MapMode = "FlatFace"
sketch19.AttachmentOffset = App.Placement(V(0, 0, -18 * 25.4), App.Rotation())
sketch19.addGeometry([
    Part.LineSegment(V(457, 914, 0), V(457, 876, 0)),
    Part.LineSegment(V(457, 876, 0), V(546, 876, 0)),
    Part.LineSegment(V(546, 876, 0), V(546, 914, 0)),
    Part.LineSegment(V(546, 914, 0), V(457, 914, 0)),
], False)
sketch19.addConstraint([
    Sketcher.Constraint("Coincident", 0, 2, 1, 1),
    Sketcher.Constraint("Coincident", 1, 2, 2, 1),
    Sketcher.Constraint("Coincident", 2, 2, 3, 1),
    Sketcher.Constraint("Coincident", 3, 2, 0, 1),
    Sketcher.Constraint("Vertical", 0),
    Sketcher.Constraint("Horizontal", 1),
    Sketcher.Constraint("Vertical", 2),
    Sketcher.Constraint("Horizontal", 3),
    Sketcher.Constraint("DistanceX", 1, 1, 1, 2, Q("3.5 in")),
    Sketcher.Constraint("DistanceY", 0, 2, 0, 1, Q("1.5 in")),
    Sketcher.Constraint("DistanceX", -1, 1, 0, 2, Q("18 in")),
    Sketcher.Constraint("DistanceY", -1, 1, 2, 2, Q("36 in")),
])
pad19 = body19.newObject("PartDesign::Pad", "Pad018")
pad19.Profile = sketch19
pad19.Length = Q("36 in")
body20 = doc.addObject("PartDesign::Body", "Body019")

# Sketch on YZ plane
sketch20 = body20.newObject("Sketcher::SketchObject", "Sketch019")
sketch20.AttachmentSupport = (doc.getObject("YZ_Plane019"), [""])
sketch20.MapMode = "FlatFace"
sketch20.AttachmentOffset = App.Placement(V(0, 0, -16.5 * 25.4), App.Rotation())
sketch20.addGeometry([
    Part.LineSegment(V(-495, 2134, 0), V(-495, 2045, 0)),
    Part.LineSegment(V(-495, 2045, 0), V(-457, 2045, 0)),
    Part.LineSegment(V(-457, 2045, 0), V(-457, 2134, 0)),
    Part.LineSegment(V(-457, 2134, 0), V(-495, 2134, 0)),
], False)
sketch20.addConstraint([
    Sketcher.Constraint("Coincident", 0, 2, 1, 1),
    Sketcher.Constraint("Coincident", 1, 2, 2, 1),
    Sketcher.Constraint("Coincident", 2, 2, 3, 1),
    Sketcher.Constraint("Coincident", 3, 2, 0, 1),
    Sketcher.Constraint("Vertical", 0),
    Sketcher.Constraint("Horizontal", 1),
    Sketcher.Constraint("Vertical", 2),
    Sketcher.Constraint("Horizontal", 3),
    Sketcher.Constraint("DistanceX", 1, 1, 1, 2, Q("1.5 in")),
    Sketcher.Constraint("DistanceY", 0, 2, 0, 1, Q("3.5 in")),
    Sketcher.Constraint("DistanceX", 1, 2, -1, 1, Q("18 in")),
    Sketcher.Constraint("DistanceY", -1, 1, 2, 2, Q("84 in")),
])
pad20 = body20.newObject("PartDesign::Pad", "Pad019")
pad20.Profile = sketch20
pad20.Length = Q("33 in")
body21 = doc.addObject("PartDesign::Body", "Body020")

# Sketch on YZ plane
sketch21 = body21.newObject("Sketcher::SketchObject", "Sketch020")
sketch21.AttachmentSupport = (doc.getObject("YZ_Plane020"), [""])
sketch21.MapMode = "FlatFace"
sketch21.AttachmentOffset = App.Placement(V(0, 0, -16.5 * 25.4), App.Rotation())
sketch21.addGeometry([
    Part.LineSegment(V(457, 2134, 0), V(457, 2045, 0)),
    Part.LineSegment(V(457, 2045, 0), V(495, 2045, 0)),
    Part.LineSegment(V(495, 2045, 0), V(495, 2134, 0)),
    Part.LineSegment(V(495, 2134, 0), V(457, 2134, 0)),
], False)
sketch21.addConstraint([
    Sketcher.Constraint("Coincident", 0, 2, 1, 1),
    Sketcher.Constraint("Coincident", 1, 2, 2, 1),
    Sketcher.Constraint("Coincident", 2, 2, 3, 1),
    Sketcher.Constraint("Coincident", 3, 2, 0, 1),
    Sketcher.Constraint("Vertical", 0),
    Sketcher.Constraint("Horizontal", 1),
    Sketcher.Constraint("Vertical", 2),
    Sketcher.Constraint("Horizontal", 3),
    Sketcher.Constraint("DistanceX", 1, 1, 1, 2, Q("1.5 in")),
    Sketcher.Constraint("DistanceY", 0, 2, 0, 1, Q("3.5 in")),
    Sketcher.Constraint("DistanceX", -1, 1, 0, 2, Q("18 in")),
    Sketcher.Constraint("DistanceY", -1, 1, 2, 2, Q("84 in")),
])
pad21 = body21.newObject("PartDesign::Pad", "Pad020")
pad21.Profile = sketch21
pad21.Length = Q("33 in")

doc.recompute()
